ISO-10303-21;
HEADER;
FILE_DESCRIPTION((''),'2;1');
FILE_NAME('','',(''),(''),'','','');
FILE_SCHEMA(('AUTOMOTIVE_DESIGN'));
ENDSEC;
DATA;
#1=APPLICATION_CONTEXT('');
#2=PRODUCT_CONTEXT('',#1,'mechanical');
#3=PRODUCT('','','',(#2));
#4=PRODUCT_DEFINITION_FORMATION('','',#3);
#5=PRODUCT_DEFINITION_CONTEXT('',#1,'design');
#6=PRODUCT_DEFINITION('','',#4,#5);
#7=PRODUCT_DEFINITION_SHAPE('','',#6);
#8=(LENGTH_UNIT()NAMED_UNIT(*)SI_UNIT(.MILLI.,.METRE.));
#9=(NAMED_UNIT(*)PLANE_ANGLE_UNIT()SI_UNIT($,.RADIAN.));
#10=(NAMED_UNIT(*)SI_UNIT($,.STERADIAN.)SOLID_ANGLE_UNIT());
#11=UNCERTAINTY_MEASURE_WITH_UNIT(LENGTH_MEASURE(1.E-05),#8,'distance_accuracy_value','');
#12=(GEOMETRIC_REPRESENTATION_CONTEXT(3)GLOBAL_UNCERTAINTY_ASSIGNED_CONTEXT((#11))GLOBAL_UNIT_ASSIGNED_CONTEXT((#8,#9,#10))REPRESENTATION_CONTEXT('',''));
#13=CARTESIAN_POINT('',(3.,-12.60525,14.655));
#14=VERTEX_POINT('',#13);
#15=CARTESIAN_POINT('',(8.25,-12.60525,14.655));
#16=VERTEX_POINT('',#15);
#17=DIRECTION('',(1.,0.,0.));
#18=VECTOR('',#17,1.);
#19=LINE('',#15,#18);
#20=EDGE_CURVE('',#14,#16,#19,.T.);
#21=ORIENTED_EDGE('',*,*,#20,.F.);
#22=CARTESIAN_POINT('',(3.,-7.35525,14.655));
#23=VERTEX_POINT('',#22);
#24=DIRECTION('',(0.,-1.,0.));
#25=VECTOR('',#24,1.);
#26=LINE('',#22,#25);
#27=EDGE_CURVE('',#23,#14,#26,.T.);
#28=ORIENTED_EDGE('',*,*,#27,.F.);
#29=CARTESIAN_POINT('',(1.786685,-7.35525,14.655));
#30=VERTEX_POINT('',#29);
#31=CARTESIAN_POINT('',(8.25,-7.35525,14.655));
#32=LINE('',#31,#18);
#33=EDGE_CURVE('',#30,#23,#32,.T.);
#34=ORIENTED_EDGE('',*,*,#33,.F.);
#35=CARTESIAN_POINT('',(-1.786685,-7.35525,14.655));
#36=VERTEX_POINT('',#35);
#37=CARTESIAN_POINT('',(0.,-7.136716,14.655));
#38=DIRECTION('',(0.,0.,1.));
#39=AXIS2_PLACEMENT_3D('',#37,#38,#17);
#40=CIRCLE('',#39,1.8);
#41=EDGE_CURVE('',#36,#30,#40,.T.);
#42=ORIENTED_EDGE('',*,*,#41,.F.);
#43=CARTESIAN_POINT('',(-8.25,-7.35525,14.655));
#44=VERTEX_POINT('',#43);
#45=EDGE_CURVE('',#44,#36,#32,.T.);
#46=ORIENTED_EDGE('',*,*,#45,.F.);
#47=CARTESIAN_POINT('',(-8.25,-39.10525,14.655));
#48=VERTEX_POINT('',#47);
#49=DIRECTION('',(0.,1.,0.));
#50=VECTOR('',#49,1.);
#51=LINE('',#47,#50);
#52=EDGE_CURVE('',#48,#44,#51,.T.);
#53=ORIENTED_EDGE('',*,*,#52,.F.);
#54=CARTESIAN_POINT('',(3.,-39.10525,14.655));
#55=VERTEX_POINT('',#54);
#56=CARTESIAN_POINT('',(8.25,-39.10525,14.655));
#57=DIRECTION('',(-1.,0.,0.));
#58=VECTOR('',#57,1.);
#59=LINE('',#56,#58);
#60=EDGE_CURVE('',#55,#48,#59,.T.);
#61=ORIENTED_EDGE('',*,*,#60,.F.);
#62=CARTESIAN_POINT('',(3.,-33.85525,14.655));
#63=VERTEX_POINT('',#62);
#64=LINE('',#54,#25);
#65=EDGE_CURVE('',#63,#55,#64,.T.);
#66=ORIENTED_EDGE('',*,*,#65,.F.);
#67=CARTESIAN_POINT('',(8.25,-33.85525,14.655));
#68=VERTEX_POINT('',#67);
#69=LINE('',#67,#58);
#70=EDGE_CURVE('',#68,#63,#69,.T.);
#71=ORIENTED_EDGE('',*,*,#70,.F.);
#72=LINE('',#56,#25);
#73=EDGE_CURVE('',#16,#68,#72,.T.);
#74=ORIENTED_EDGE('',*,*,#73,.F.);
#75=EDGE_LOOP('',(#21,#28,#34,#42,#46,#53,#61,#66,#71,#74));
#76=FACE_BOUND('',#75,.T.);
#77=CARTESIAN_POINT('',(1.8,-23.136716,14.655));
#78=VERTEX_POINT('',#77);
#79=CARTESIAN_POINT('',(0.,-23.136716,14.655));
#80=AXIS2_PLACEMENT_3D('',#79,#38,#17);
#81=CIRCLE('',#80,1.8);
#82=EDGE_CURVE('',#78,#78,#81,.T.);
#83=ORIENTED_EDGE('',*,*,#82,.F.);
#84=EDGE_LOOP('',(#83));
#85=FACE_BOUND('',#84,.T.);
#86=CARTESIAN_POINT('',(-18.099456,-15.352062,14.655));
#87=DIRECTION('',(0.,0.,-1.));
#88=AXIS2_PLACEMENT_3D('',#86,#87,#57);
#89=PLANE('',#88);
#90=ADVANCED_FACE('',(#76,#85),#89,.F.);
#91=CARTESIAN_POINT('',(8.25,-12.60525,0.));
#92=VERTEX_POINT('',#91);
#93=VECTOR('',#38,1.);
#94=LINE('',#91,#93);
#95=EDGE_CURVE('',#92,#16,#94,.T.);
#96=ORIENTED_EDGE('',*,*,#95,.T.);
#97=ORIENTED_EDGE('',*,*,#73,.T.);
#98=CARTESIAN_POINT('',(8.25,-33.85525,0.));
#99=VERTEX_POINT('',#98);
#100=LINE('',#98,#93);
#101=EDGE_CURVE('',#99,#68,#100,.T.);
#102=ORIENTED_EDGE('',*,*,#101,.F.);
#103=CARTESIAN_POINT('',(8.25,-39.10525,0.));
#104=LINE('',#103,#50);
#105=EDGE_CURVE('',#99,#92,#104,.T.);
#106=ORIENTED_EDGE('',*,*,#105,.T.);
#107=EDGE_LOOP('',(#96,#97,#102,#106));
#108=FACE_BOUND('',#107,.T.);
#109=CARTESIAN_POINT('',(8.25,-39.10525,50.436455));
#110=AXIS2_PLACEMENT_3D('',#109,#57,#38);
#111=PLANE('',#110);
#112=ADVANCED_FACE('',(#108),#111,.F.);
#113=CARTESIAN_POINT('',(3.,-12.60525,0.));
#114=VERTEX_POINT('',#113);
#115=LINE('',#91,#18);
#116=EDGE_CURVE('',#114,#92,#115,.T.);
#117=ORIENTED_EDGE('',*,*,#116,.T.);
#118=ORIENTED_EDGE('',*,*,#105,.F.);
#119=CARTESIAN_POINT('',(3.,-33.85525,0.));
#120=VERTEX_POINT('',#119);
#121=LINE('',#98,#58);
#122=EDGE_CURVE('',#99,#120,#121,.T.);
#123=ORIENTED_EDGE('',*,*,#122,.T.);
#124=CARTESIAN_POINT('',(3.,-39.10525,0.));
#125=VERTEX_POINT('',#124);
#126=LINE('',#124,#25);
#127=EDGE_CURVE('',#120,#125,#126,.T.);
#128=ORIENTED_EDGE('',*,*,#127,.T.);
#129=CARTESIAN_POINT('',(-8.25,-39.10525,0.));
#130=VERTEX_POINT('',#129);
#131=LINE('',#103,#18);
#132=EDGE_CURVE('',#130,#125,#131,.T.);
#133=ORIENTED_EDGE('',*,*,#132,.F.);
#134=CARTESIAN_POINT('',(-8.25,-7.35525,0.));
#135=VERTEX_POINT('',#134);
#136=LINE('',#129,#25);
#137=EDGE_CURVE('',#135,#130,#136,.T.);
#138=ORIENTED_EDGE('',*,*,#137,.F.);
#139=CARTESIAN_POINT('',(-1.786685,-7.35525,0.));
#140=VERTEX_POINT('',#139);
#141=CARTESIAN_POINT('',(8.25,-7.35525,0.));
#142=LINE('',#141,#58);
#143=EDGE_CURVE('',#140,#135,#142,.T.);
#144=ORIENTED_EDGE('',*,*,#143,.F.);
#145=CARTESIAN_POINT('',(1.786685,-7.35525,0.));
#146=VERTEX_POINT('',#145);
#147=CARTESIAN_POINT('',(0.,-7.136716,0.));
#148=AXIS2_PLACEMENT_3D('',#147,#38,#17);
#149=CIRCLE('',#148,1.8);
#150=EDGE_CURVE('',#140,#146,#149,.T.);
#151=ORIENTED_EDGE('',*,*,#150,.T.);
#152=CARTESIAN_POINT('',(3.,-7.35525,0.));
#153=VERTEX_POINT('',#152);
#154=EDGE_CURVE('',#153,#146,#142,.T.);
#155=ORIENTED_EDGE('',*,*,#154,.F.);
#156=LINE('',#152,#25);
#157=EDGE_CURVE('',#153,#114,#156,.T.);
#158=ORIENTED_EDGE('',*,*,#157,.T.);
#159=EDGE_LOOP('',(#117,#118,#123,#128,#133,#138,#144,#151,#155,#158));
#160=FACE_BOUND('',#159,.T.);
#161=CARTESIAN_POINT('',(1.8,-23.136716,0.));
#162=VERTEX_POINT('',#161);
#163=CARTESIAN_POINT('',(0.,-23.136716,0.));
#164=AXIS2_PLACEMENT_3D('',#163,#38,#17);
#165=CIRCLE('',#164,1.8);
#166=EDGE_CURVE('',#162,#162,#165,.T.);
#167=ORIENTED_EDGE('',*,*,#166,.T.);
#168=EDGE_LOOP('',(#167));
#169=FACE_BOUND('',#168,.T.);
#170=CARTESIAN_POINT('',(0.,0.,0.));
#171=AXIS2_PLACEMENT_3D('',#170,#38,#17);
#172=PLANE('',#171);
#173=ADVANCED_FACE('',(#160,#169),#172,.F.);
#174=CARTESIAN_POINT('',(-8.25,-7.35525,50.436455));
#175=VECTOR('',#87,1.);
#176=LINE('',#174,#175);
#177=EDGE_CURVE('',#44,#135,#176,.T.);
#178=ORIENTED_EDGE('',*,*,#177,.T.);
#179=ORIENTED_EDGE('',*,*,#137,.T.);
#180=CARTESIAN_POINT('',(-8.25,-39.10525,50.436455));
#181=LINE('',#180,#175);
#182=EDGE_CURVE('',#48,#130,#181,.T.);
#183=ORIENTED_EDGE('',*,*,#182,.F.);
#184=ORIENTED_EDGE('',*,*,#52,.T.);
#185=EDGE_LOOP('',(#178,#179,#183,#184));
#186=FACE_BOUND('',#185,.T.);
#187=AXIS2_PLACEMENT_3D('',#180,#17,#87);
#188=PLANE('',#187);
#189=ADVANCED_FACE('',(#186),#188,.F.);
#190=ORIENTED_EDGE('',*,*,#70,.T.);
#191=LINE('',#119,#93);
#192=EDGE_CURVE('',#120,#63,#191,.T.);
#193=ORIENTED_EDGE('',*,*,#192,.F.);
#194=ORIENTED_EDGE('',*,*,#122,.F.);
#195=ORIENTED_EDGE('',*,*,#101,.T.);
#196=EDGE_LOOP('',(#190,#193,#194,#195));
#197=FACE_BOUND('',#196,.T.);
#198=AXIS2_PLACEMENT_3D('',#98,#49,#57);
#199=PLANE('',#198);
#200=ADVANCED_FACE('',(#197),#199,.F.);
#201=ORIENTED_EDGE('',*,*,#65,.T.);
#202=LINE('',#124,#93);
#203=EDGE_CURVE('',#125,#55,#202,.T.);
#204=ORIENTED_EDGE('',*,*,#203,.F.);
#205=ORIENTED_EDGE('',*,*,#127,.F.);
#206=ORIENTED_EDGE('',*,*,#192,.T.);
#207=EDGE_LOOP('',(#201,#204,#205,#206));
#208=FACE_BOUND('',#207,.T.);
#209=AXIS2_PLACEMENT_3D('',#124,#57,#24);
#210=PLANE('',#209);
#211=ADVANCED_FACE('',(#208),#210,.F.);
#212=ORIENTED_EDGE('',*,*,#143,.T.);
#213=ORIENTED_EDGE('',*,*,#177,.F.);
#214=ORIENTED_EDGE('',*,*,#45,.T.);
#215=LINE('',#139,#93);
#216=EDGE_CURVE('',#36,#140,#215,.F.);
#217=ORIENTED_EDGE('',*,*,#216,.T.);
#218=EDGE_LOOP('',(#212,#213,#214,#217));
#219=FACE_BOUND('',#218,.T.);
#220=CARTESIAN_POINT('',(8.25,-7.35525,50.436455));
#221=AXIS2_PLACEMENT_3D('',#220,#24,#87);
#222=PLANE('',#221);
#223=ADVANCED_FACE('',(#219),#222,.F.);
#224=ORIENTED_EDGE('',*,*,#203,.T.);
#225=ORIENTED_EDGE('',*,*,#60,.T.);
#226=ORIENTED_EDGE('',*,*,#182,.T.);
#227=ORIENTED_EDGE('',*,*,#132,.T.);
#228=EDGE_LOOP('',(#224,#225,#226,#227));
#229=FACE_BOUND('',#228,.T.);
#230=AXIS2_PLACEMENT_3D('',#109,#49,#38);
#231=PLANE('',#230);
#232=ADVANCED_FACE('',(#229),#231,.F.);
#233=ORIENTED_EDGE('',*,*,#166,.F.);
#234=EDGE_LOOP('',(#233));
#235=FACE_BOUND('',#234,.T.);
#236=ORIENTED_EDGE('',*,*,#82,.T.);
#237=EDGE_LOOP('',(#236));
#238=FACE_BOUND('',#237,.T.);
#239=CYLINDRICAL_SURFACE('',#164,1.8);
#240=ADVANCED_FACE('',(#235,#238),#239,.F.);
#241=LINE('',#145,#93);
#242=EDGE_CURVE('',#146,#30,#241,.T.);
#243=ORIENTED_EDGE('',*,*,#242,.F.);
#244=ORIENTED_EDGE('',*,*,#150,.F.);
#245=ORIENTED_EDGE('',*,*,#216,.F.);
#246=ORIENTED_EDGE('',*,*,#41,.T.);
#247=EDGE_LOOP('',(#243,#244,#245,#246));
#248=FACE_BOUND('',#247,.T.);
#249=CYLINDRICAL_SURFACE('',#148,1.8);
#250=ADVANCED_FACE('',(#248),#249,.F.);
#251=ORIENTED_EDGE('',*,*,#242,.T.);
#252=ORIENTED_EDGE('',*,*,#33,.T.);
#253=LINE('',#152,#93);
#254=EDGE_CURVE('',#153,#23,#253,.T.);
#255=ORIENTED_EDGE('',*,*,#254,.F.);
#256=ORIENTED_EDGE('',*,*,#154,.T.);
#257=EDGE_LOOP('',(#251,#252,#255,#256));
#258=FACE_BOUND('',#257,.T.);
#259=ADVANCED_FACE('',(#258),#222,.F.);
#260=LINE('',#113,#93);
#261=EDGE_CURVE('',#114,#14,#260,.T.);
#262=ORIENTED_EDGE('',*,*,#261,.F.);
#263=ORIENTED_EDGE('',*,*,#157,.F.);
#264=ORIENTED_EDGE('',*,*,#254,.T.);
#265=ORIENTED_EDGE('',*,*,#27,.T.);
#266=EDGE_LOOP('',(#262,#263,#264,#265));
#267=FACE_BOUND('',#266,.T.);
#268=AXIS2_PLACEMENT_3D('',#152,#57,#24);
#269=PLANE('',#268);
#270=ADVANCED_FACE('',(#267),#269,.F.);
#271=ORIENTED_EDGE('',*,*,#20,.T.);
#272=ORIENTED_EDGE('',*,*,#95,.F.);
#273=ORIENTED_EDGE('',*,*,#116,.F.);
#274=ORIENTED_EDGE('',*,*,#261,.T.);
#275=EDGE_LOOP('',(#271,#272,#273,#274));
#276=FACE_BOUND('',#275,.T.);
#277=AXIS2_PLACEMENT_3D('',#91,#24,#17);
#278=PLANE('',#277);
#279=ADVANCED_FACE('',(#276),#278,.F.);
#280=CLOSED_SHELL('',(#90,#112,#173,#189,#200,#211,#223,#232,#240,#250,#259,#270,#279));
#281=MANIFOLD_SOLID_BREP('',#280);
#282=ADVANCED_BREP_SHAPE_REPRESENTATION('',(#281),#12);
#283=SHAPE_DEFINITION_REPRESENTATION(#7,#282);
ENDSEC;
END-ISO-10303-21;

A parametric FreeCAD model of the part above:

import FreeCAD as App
import Part
import Sketcher

V = App.Vector


def add_polygon(sketch, points):
    """Adds a closed chain of lines whose ends are joined by coincident constraints."""
    first, n = sketch.GeometryCount, len(points)
    for a, b in zip(points, points[1:] + points[:1]):
        sketch.addGeometry(Part.LineSegment(App.Vector(*a, 0), App.Vector(*b, 0)), False)
    for i in range(n):
        sketch.addConstraint(Sketcher.Constraint("Coincident", first + i, 2, first + (i + 1) % n, 1))

doc = App.newDocument("Part")
body = doc.addObject("PartDesign::Body", "Body")

# Sketch on XY plane
sketch1 = body.newObject("Sketcher::SketchObject", "Sketch")
sketch1.AttachmentSupport = (doc.getObject("XY_Plane"), [""])
sketch1.MapMode = "FlatFace"
add_polygon(sketch1, [(-8.25, -7.35525), (-8.25, -39.10525), (8.25, -39.10525), (8.25, -7.35525)])  # lines 0-3
sketch1.addConstraint([
    Sketcher.Constraint("Vertical", 0),
    Sketcher.Constraint("Horizontal", 1),
    Sketcher.Constraint("Vertical", 2),
    Sketcher.Constraint("Horizontal", 3),
    Sketcher.Constraint("DistanceX", 1, 1, 1, 2, 16.5),
    Sketcher.Constraint("DistanceY", 0, 2, 0, 1, 31.75),
    Sketcher.Constraint("DistanceX", 0, 2, -1, 1, 8.25),
    Sketcher.Constraint("DistanceY", 0, 2, -1, 1, 39.10525),
])
pad1 = body.newObject("PartDesign::Pad", "Pad")
pad1.Profile = sketch1
pad1.Length = 14.655

# Sketch on XY plane
sketch2 = body.newObject("Sketcher::SketchObject", "Sketch001")
sketch2.AttachmentSupport = (doc.getObject("XY_Plane"), [""])
sketch2.MapMode = "FlatFace"
sketch2.AttachmentOffset = App.Placement(V(0, 0, 14.655), App.Rotation())
add_polygon(sketch2, [(3, -33.85525), (3, -39.10525), (8.25, -39.10525), (8.25, -33.85525)])  # lines 0-3
add_polygon(sketch2, [(3, -7.35525), (3, -12.60525), (8.25, -12.60525), (8.25, -7.35525)])  # lines 4-7
sketch2.addConstraint([
    Sketcher.Constraint("Vertical", 0),
    Sketcher.Constraint("Horizontal", 1),
    Sketcher.Constraint("Vertical", 2),
    Sketcher.Constraint("Horizontal", 3),
    Sketcher.Constraint("Vertical", 4),
    Sketcher.Constraint("Horizontal", 5),
    Sketcher.Constraint("Vertical", 6),
    Sketcher.Constraint("Horizontal", 7),
    Sketcher.Constraint("Vertical", 3, 2, 4, 2),
    Sketcher.Constraint("Vertical", 2, 2, 5, 2),
    Sketcher.Constraint("Equal", 7, 0),
    Sketcher.Constraint("Equal", 2, 4),
    Sketcher.Constraint("DistanceX", -1, 1, 0, 2, 3.0),
    Sketcher.Constraint("DistanceX", 1, 1, 1, 2, 5.25),
    Sketcher.Constraint("DistanceY", 0, 2, 4, 2, 26.5),
    Sketcher.Constraint("DistanceY", 0, 2, -1, 1, 39.10525),
])
pocket1 = body.newObject("PartDesign::Pocket", "Pocket")
pocket1.Profile = sketch2
pocket1.Type = "ThroughAll"

# Sketch on XY plane
sketch3 = body.newObject("Sketcher::SketchObject", "Sketch002")
sketch3.AttachmentSupport = (doc.getObject("XY_Plane"), [""])
sketch3.MapMode = "FlatFace"
sketch3.AttachmentOffset = App.Placement(V(0, 0, 14.655), App.Rotation())
sketch3.addGeometry([
    Part.Circle(V(0, -23.136716, 0), V(0, 0, 1), 1.8),
    Part.Circle(V(0, -7.136716, 0), V(0, 0, 1), 1.8),
], False)
sketch3.addConstraint([
    Sketcher.Constraint("Equal", 0, 1),
    Sketcher.Constraint("PointOnObject", 0, 3, -2),
    Sketcher.Constraint("PointOnObject", 1, 3, -2),
    Sketcher.Constraint("Diameter", 0, 3.6),
    Sketcher.Constraint("DistanceY", 0, 3, 1, 3, 16.0),
    Sketcher.Constraint("DistanceY", 0, 3, -1, 1, 23.136716),
])
pocket2 = body.newObject("PartDesign::Pocket", "Pocket001")
pocket2.Profile = sketch3
pocket2.Type = "ThroughAll"

doc.recompute()
